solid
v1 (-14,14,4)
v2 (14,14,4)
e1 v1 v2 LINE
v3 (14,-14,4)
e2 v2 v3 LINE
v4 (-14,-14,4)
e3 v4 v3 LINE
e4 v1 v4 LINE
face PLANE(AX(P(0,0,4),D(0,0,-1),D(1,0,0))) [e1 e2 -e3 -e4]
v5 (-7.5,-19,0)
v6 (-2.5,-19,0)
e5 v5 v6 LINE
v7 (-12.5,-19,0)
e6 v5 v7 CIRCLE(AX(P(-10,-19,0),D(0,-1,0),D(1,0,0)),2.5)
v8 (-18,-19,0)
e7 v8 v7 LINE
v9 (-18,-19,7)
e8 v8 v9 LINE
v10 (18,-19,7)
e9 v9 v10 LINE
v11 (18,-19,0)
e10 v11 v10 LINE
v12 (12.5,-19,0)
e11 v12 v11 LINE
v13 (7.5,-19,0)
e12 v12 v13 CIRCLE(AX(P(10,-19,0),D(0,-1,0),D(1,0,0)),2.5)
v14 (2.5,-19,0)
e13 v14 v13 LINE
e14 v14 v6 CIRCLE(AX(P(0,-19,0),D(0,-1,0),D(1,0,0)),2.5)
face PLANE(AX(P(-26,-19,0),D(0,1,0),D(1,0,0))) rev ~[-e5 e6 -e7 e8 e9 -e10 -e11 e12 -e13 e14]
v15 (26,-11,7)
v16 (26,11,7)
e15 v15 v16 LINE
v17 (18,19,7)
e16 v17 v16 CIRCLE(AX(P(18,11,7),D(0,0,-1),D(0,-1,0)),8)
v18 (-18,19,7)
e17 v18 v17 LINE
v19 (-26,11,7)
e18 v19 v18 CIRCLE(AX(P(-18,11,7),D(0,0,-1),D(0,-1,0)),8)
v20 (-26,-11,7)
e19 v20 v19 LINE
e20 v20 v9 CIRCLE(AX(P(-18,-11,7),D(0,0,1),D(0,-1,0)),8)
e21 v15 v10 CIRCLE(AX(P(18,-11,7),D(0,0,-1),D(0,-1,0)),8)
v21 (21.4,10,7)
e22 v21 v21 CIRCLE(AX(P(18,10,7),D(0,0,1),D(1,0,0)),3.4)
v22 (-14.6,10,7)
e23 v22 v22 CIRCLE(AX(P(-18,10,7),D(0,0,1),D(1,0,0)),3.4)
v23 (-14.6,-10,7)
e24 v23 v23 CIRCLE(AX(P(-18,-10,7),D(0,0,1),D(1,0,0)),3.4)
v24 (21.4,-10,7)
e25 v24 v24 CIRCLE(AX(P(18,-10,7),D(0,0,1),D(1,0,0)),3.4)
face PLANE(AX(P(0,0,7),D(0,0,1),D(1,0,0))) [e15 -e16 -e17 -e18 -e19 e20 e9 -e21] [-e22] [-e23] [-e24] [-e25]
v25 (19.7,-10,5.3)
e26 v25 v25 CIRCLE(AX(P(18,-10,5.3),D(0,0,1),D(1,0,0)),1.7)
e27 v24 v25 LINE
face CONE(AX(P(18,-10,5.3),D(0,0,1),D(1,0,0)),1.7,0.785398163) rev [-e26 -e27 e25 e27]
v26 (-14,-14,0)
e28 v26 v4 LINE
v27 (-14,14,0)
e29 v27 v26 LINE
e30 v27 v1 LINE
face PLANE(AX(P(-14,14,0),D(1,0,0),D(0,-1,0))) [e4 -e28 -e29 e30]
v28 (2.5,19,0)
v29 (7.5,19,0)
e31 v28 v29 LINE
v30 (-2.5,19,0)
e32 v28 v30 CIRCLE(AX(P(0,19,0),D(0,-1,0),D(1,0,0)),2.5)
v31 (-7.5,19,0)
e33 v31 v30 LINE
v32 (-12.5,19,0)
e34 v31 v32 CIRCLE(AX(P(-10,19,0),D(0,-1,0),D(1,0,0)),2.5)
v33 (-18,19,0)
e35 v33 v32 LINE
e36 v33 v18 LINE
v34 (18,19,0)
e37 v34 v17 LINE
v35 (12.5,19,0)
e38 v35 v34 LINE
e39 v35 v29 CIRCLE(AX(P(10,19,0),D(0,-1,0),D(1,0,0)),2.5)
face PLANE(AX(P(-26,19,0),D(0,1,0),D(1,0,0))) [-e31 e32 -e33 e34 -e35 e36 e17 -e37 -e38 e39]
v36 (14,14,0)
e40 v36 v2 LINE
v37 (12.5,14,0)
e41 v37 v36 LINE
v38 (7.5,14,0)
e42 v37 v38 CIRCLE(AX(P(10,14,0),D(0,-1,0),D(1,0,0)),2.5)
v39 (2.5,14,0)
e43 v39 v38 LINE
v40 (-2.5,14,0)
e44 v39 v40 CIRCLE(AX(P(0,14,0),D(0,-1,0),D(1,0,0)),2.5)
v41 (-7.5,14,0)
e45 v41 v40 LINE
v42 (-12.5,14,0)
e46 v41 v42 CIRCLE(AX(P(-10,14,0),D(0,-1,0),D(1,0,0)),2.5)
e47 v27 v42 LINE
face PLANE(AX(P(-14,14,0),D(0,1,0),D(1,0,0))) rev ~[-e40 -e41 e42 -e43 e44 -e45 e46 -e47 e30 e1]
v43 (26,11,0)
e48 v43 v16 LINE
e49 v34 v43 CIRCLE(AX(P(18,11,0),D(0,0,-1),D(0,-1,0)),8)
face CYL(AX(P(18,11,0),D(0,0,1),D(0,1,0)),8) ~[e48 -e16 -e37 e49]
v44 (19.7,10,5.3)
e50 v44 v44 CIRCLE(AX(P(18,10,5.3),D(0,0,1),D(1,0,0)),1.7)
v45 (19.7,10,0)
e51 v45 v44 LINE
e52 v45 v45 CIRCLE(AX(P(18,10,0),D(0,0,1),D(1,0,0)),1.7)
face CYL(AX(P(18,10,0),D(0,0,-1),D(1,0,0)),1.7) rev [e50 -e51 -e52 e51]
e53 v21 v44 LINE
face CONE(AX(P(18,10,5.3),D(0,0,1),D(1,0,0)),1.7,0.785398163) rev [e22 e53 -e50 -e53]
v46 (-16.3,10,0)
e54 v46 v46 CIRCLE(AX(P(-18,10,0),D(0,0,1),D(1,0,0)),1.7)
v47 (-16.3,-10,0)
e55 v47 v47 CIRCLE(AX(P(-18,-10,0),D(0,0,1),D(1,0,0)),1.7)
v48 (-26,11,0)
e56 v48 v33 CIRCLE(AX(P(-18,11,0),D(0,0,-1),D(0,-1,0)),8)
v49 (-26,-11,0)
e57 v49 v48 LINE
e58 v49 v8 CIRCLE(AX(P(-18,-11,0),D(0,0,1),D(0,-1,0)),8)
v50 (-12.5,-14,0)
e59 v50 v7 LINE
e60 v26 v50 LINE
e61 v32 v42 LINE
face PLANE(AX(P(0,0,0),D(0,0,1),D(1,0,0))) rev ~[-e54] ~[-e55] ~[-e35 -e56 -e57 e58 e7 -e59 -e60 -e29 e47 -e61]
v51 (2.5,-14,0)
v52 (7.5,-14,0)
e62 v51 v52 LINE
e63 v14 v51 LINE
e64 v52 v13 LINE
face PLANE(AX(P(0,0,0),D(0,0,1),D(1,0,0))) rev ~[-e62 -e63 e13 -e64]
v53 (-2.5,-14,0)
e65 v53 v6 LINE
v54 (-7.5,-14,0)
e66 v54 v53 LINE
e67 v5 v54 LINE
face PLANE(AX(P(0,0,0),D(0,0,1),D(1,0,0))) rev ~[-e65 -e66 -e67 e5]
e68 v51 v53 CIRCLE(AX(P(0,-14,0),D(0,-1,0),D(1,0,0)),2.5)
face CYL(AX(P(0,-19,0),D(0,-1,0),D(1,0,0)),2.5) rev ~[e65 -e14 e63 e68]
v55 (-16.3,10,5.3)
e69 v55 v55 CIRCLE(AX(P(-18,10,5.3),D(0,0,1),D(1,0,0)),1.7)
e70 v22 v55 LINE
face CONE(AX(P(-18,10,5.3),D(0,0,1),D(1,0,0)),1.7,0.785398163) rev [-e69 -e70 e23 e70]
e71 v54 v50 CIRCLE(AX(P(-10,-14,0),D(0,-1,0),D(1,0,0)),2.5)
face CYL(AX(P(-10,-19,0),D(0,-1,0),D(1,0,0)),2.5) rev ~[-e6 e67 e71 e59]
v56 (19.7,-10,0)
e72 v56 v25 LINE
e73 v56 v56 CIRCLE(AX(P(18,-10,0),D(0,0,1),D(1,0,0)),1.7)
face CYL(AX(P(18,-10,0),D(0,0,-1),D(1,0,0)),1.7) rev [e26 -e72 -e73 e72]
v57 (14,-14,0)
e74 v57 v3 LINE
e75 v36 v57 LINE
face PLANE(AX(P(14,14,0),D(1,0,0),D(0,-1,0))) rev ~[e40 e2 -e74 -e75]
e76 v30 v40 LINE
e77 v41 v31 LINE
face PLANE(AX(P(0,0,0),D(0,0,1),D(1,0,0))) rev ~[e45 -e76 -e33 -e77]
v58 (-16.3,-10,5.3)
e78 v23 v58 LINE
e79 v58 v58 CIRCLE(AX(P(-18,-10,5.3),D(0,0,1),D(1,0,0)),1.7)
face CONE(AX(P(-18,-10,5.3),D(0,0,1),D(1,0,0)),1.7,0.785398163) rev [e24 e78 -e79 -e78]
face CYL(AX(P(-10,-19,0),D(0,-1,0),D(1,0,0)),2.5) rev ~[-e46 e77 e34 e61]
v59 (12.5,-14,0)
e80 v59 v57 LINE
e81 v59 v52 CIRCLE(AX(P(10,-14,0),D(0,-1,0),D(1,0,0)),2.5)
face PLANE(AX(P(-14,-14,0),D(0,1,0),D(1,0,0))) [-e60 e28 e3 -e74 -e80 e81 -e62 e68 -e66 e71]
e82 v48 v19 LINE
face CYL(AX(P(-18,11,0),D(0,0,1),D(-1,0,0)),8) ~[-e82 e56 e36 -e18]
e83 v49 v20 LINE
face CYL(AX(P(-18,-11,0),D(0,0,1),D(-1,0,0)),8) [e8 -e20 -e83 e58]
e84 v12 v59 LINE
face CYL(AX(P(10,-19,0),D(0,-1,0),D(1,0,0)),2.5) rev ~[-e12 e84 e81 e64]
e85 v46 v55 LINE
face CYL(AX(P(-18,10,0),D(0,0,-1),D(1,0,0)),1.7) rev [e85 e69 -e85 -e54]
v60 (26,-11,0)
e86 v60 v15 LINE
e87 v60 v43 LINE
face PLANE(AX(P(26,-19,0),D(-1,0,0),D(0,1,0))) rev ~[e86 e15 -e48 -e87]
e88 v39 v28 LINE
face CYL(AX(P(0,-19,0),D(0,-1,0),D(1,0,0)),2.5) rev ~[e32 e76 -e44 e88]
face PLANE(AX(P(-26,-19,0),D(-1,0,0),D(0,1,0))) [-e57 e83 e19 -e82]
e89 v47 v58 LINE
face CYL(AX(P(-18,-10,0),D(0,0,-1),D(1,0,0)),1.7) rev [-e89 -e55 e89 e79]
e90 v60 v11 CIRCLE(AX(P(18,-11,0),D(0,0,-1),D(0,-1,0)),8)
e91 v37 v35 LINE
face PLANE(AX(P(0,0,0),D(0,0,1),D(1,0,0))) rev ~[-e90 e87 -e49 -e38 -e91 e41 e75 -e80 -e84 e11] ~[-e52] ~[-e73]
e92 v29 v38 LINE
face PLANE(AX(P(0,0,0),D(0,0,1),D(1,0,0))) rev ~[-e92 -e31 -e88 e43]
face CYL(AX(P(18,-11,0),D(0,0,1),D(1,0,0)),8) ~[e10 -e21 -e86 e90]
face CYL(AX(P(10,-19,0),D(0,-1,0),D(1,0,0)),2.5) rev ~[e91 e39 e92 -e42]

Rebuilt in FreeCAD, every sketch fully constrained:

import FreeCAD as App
import Part
import Sketcher
Q = App.Units.Quantity


def edges_at(feature, points):
    """Names of the edges that pass closest to the given points."""
    edges = feature.Shape.Edges
    near = lambda p: min(range(len(edges)), key=lambda i: edges[i].distToShape(Part.Vertex(*p))[0])
    return sorted({f"Edge{near(p) + 1}" for p in points})

doc = App.newDocument("Part")
body = doc.addObject("PartDesign::Body", "Body")

# Sketch on XY plane
sketch1 = body.newObject("Sketcher::SketchObject", "Sketch")
sketch1.AttachmentSupport = (doc.getObject("XY_Plane"), [""])
sketch1.MapMode = "FlatFace"
sketch1.addGeometry(Part.LineSegment(App.Vector(-26, 19, 0), App.Vector(-26, -19, 0)), False)
sketch1.addGeometry(Part.LineSegment(App.Vector(-26, -19, 0), App.Vector(26, -19, 0)), False)
sketch1.addGeometry(Part.LineSegment(App.Vector(26, -19, 0), App.Vector(26, 19, 0)), False)
sketch1.addGeometry(Part.LineSegment(App.Vector(26, 19, 0), App.Vector(-26, 19, 0)), False)
sketch1.addGeometry(Part.Circle(App.Vector(-18, -10, 0), App.Vector(0, 0, 1), 1.7), False)
sketch1.addGeometry(Part.Circle(App.Vector(18, -10, 0), App.Vector(0, 0, 1), 1.7), False)
sketch1.addGeometry(Part.Circle(App.Vector(-18, 10, 0), App.Vector(0, 0, 1), 1.7), False)
sketch1.addGeometry(Part.Circle(App.Vector(18, 10, 0), App.Vector(0, 0, 1), 1.7), False)
sketch1.addConstraint(Sketcher.Constraint("Coincident", 0, 2, 1, 1))
sketch1.addConstraint(Sketcher.Constraint("Coincident", 1, 2, 2, 1))
sketch1.addConstraint(Sketcher.Constraint("Coincident", 2, 2, 3, 1))
sketch1.addConstraint(Sketcher.Constraint("Coincident", 3, 2, 0, 1))
sketch1.addConstraint(Sketcher.Constraint("Vertical", 0))
sketch1.addConstraint(Sketcher.Constraint("Horizontal", 1))
sketch1.addConstraint(Sketcher.Constraint("Vertical", 2))
sketch1.addConstraint(Sketcher.Constraint("Horizontal", 3))
sketch1.addConstraint(Sketcher.Constraint("Equal", 4, 5))
sketch1.addConstraint(Sketcher.Constraint("Equal", 5, 6))
sketch1.addConstraint(Sketcher.Constraint("Equal", 6, 7))
sketch1.addConstraint(Sketcher.Constraint("Symmetric", 5, 3, 6, 3, -1, 1))
sketch1.addConstraint(Sketcher.Constraint("Symmetric", 4, 3, 7, 3, -1, 1))
sketch1.addConstraint(Sketcher.Constraint("Symmetric", 0, 2, 2, 2, -1, 1))
sketch1.addConstraint(Sketcher.Constraint("Symmetric", 4, 3, 5, 3, -2))
sketch1.addConstraint(Sketcher.Constraint("Diameter", 4, Q("3.4 mm")))
sketch1.addConstraint(Sketcher.Constraint("DistanceX", 1, 1, 1, 2, Q("52 mm")))
sketch1.addConstraint(Sketcher.Constraint("DistanceY", 0, 2, 0, 1, Q("38 mm")))
sketch1.addConstraint(Sketcher.Constraint("DistanceX", 4, 3, -1, 1, Q("18 mm")))
sketch1.addConstraint(Sketcher.Constraint("DistanceY", 4, 3, -1, 1, Q("10 mm")))
pad1 = body.newObject("PartDesign::Pad", "Pad")
pad1.Profile = sketch1
pad1.Length = 7

# Sketch on XZ plane
sketch2 = body.newObject("Sketcher::SketchObject", "Sketch001")
sketch2.AttachmentSupport = (doc.getObject("XZ_Plane"), [""])
sketch2.MapMode = "FlatFace"
sketch2.AttachmentOffset = App.Placement(App.Vector(0, 0, 19), App.Rotation())
sketch2.addGeometry(Part.Circle(App.Vector(-10, 0, 0), App.Vector(0, 0, 1), 2.5), False)
sketch2.addGeometry(Part.Circle(App.Vector(0, 0, 0), App.Vector(0, 0, 1), 2.5), False)
sketch2.addGeometry(Part.Circle(App.Vector(10, 0, 0), App.Vector(0, 0, 1), 2.5), False)
sketch2.addConstraint(Sketcher.Constraint("Coincident", 1, 3, -1, 1))
sketch2.addConstraint(Sketcher.Constraint("Equal", 0, 1))
sketch2.addConstraint(Sketcher.Constraint("Equal", 1, 2))
sketch2.addConstraint(Sketcher.Constraint("Symmetric", 0, 3, 2, 3, -1, 1))
sketch2.addConstraint(Sketcher.Constraint("PointOnObject", 0, 3, -1))
sketch2.addConstraint(Sketcher.Constraint("Diameter", 0, Q("5 mm")))
sketch2.addConstraint(Sketcher.Constraint("DistanceX", 0, 3, -1, 1, Q("10 mm")))
pocket1 = body.newObject("PartDesign::Pocket", "Pocket")
pocket1.Profile = sketch2
pocket1.Type = "ThroughAll"

# Sketch on XY plane
sketch3 = body.newObject("Sketcher::SketchObject", "Sketch002")
sketch3.AttachmentSupport = (doc.getObject("XY_Plane"), [""])
sketch3.MapMode = "FlatFace"
sketch3.addGeometry(Part.LineSegment(App.Vector(-14, -14, 0), App.Vector(-14, 14, 0)), False)
sketch3.addGeometry(Part.LineSegment(App.Vector(-14, 14, 0), App.Vector(14, 14, 0)), False)
sketch3.addGeometry(Part.LineSegment(App.Vector(14, 14, 0), App.Vector(14, -14, 0)), False)
sketch3.addGeometry(Part.LineSegment(App.Vector(14, -14, 0), App.Vector(-14, -14, 0)), False)
sketch3.addConstraint(Sketcher.Constraint("Coincident", 0, 2, 1, 1))
sketch3.addConstraint(Sketcher.Constraint("Coincident", 1, 2, 2, 1))
sketch3.addConstraint(Sketcher.Constraint("Coincident", 2, 2, 3, 1))
sketch3.addConstraint(Sketcher.Constraint("Coincident", 3, 2, 0, 1))
sketch3.addConstraint(Sketcher.Constraint("Vertical", 0))
sketch3.addConstraint(Sketcher.Constraint("Horizontal", 1))
sketch3.addConstraint(Sketcher.Constraint("Vertical", 2))
sketch3.addConstraint(Sketcher.Constraint("Horizontal", 3))
sketch3.addConstraint(Sketcher.Constraint("Symmetric", 0, 2, 2, 2, -1, 1))
sketch3.addConstraint(Sketcher.Constraint("Equal", 3, 0))
sketch3.addConstraint(Sketcher.Constraint("DistanceX", 1, 1, 1, 2, Q("28 mm")))
pocket2 = body.newObject("PartDesign::Pocket", "Pocket001")
pocket2.Profile = sketch3
pocket2.Length = 4
pocket2.Reversed = True
doc.recompute()

fillet = body.newObject("PartDesign::Fillet", "Fillet")
fillet.Base = (pocket2, edges_at(pocket2, [(-26, -19, 3.5)]))
fillet.Radius = 8
doc.recompute()

fillet2 = body.newObject("PartDesign::Fillet", "Fillet001")
fillet2.Base = (fillet, edges_at(fillet, [(-26, 19, 3.5)]))
fillet2.Radius = 8
doc.recompute()

fillet3 = body.newObject("PartDesign::Fillet", "Fillet002")
fillet3.Base = (fillet2, edges_at(fillet2, [(26, 19, 3.5)]))
fillet3.Radius = 8
doc.recompute()

fillet4 = body.newObject("PartDesign::Fillet", "Fillet003")
fillet4.Base = (fillet3, edges_at(fillet3, [(26, -19, 3.5)]))
fillet4.Radius = 8
doc.recompute()

chamfer = body.newObject("PartDesign::Chamfer", "Chamfer")
chamfer.Base = (fillet4, edges_at(fillet4, [(16.3, -10, 7)]))
chamfer.Size = 1.7
doc.recompute()

chamfer2 = body.newObject("PartDesign::Chamfer", "Chamfer001")
chamfer2.Base = (chamfer, edges_at(chamfer, [(16.3, 10, 7)]))
chamfer2.Size = 1.7
doc.recompute()

chamfer3 = body.newObject("PartDesign::Chamfer", "Chamfer002")
chamfer3.Base = (chamfer2, edges_at(chamfer2, [(-19.7, 10, 7)]))
chamfer3.Size = 1.7
doc.recompute()

chamfer4 = body.newObject("PartDesign::Chamfer", "Chamfer003")
chamfer4.Base = (chamfer3, edges_at(chamfer3, [(-19.7, -10, 7)]))
chamfer4.Size = 1.7

doc.recompute()
